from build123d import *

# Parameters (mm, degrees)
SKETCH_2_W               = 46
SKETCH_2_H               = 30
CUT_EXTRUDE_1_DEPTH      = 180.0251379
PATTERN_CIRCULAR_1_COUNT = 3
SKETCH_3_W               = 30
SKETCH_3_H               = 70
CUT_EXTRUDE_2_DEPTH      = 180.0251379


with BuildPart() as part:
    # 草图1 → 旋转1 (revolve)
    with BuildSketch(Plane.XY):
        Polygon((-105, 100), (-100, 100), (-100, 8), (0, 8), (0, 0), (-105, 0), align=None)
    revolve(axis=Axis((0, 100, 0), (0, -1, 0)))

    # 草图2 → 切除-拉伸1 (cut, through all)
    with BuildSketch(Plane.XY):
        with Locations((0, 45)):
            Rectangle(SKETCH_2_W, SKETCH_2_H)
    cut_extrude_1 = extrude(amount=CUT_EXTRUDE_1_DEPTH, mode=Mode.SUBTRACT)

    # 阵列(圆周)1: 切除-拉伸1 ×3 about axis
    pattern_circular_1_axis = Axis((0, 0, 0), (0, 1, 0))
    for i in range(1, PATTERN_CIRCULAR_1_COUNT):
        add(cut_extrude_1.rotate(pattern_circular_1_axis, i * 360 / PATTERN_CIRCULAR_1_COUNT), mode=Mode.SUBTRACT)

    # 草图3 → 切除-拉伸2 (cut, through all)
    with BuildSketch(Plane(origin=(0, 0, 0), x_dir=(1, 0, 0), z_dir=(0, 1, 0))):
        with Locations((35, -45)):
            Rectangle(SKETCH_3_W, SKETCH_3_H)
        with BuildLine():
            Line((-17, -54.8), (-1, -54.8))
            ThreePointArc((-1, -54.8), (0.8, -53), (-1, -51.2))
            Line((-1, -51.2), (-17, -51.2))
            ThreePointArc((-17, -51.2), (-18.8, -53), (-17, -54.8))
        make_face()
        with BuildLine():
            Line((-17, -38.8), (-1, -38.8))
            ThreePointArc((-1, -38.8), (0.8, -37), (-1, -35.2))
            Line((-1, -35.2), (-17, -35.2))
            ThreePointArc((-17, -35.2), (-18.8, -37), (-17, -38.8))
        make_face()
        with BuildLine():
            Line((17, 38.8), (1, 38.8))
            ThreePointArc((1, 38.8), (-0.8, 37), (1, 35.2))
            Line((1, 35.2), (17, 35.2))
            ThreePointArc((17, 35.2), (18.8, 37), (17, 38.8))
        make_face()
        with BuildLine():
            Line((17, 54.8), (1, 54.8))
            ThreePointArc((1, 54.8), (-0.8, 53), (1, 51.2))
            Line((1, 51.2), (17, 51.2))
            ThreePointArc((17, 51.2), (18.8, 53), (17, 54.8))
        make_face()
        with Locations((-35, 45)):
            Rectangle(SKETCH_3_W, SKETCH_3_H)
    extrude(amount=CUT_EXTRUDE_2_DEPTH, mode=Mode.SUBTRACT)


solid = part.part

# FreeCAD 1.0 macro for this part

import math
import FreeCAD as App
import Part
import Sketcher

V = App.Vector
Q = App.Units.Quantity


def add_polygon(sketch, points):
    """Adds a closed chain of lines whose ends are joined by coincident constraints."""
    first, n = sketch.GeometryCount, len(points)
    for a, b in zip(points, points[1:] + points[:1]):
        sketch.addGeometry(Part.LineSegment(App.Vector(*a, 0), App.Vector(*b, 0)), False)
    for i in range(n):
        sketch.addConstraint(Sketcher.Constraint("Coincident", first + i, 2, first + (i + 1) % n, 1))

doc = App.newDocument("Part")
body = doc.addObject("PartDesign::Body", "Body")

# Sketch on XY plane
sketch1 = body.newObject("Sketcher::SketchObject", "Sketch")
sketch1.AttachmentSupport = (doc.getObject("XY_Plane"), [""])
sketch1.MapMode = "FlatFace"
add_polygon(sketch1, [(-100, 100), (-105, 100), (-105, 0), (0, 0), (0, 8), (-100, 8)])  # lines 0-5
sketch1.addConstraint([
    Sketcher.Constraint("Horizontal", 0),
    Sketcher.Constraint("Vertical", 1),
    Sketcher.Constraint("Horizontal", 2),
    Sketcher.Constraint("Vertical", 3),
    Sketcher.Constraint("Horizontal", 4),
    Sketcher.Constraint("Vertical", 5),
    Sketcher.Constraint("Coincident", 2, 2, -1, 1),
    Sketcher.Constraint("Equal", 4, 1),
    Sketcher.Constraint("DistanceX", 0, 2, 0, 1, Q("5 mm")),
    Sketcher.Constraint("DistanceX", 2, 1, 2, 2, Q("105 mm")),
    Sketcher.Constraint("DistanceY", 3, 1, 3, 2, Q("8 mm")),
])
revolution = body.newObject("PartDesign::Revolution", "Revolution")
revolution.Profile = sketch1
revolution.ReferenceAxis = (sketch1, ["V_Axis"])
revolution.Angle = 360

# Sketch on XY plane
sketch2 = body.newObject("Sketcher::SketchObject", "Sketch001")
sketch2.AttachmentSupport = (doc.getObject("XY_Plane"), [""])
sketch2.MapMode = "FlatFace"
add_polygon(sketch2, [(-23, 60), (-23, 30), (23, 30), (23, 60)])  # lines 0-3
sketch2.addConstraint([
    Sketcher.Constraint("Vertical", 0),
    Sketcher.Constraint("Horizontal", 1),
    Sketcher.Constraint("Vertical", 2),
    Sketcher.Constraint("Horizontal", 3),
    Sketcher.Constraint("DistanceX", 1, 1, 1, 2, Q("46 mm")),
    Sketcher.Constraint("DistanceY", 0, 2, 0, 1, Q("30 mm")),
    Sketcher.Constraint("DistanceX", 0, 2, -1, 1, Q("23 mm")),
    Sketcher.Constraint("DistanceY", -1, 1, 0, 2, Q("30 mm")),
])
pocket1 = body.newObject("PartDesign::Pocket", "Pocket")
pocket1.Profile = sketch2
pocket1.Type = "ThroughAll"
pocket1.Reversed = True
doc.recompute()

polarpattern = body.newObject("PartDesign::PolarPattern", "PolarPattern")
polarpattern.Originals = [pocket1]
polarpattern.Axis = (doc.getObject("Y_Axis"), [""])
polarpattern.Angle = 360
polarpattern.Occurrences = 3
body.Tip = polarpattern

# Sketch on XZ plane
sketch3 = body.newObject("Sketcher::SketchObject", "Sketch002")
sketch3.AttachmentSupport = (doc.getObject("XZ_Plane"), [""])
sketch3.MapMode = "FlatFace"
add_polygon(sketch3, [(20, 10), (20, 80), (50, 80), (50, 10)])  # lines 0-3
sketch3.addGeometry(Part.LineSegment(V(-17, 54.8, 0), V(-1, 54.8, 0)), False)  # 4
sketch3.addGeometry(Part.ArcOfCircle(Part.Circle(V(-1, 53, 0), V(0, 0, 1), 1.8), math.radians(-90), math.radians(90)), False)  # 5
sketch3.addGeometry(Part.LineSegment(V(-1, 51.2, 0), V(-17, 51.2, 0)), False)  # 6
sketch3.addGeometry(Part.ArcOfCircle(Part.Circle(V(-17, 53, 0), V(0, 0, 1), 1.8), math.radians(90), math.radians(270)), False)  # 7
sketch3.addGeometry(Part.LineSegment(V(-17, 38.8, 0), V(-1, 38.8, 0)), False)  # 8
sketch3.addGeometry(Part.ArcOfCircle(Part.Circle(V(-1, 37, 0), V(0, 0, 1), 1.8), math.radians(-90), math.radians(90)), False)  # 9
sketch3.addGeometry(Part.LineSegment(V(-1, 35.2, 0), V(-17, 35.2, 0)), False)  # 10
sketch3.addGeometry(Part.ArcOfCircle(Part.Circle(V(-17, 37, 0), V(0, 0, 1), 1.8), math.radians(90), math.radians(270)), False)  # 11
sketch3.addGeometry(Part.LineSegment(V(17, -38.8, 0), V(1, -38.8, 0)), False)  # 12
sketch3.addGeometry(Part.ArcOfCircle(Part.Circle(V(1, -37, 0), V(0, 0, 1), 1.8), math.radians(90), math.radians(270)), False)  # 13
sketch3.addGeometry(Part.LineSegment(V(1, -35.2, 0), V(17, -35.2, 0)), False)  # 14
sketch3.addGeometry(Part.ArcOfCircle(Part.Circle(V(17, -37, 0), V(0, 0, 1), 1.8), math.radians(-90), math.radians(90)), False)  # 15
sketch3.addGeometry(Part.LineSegment(V(17, -54.8, 0), V(1, -54.8, 0)), False)  # 16
sketch3.addGeometry(Part.ArcOfCircle(Part.Circle(V(1, -53, 0), V(0, 0, 1), 1.8), math.radians(90), math.radians(270)), False)  # 17
sketch3.addGeometry(Part.LineSegment(V(1, -51.2, 0), V(17, -51.2, 0)), False)  # 18
sketch3.addGeometry(Part.ArcOfCircle(Part.Circle(V(17, -53, 0), V(0, 0, 1), 1.8), math.radians(-90), math.radians(90)), False)  # 19
add_polygon(sketch3, [(-50, -80), (-50, -10), (-20, -10), (-20, -80)])  # lines 20-23
sketch3.addConstraint([
    Sketcher.Constraint("Tangent", 4, 2, 5, 2),
    Sketcher.Constraint("Tangent", 5, 1, 6, 1),
    Sketcher.Constraint("Tangent", 6, 2, 7, 2),
    Sketcher.Constraint("Tangent", 7, 1, 4, 1),
    Sketcher.Constraint("Tangent", 8, 2, 9, 2),
    Sketcher.Constraint("Tangent", 9, 1, 10, 1),
    Sketcher.Constraint("Tangent", 10, 2, 11, 2),
    Sketcher.Constraint("Tangent", 11, 1, 8, 1),
    Sketcher.Constraint("Tangent", 12, 2, 13, 2),
    Sketcher.Constraint("Tangent", 13, 1, 14, 1),
    Sketcher.Constraint("Tangent", 14, 2, 15, 2),
    Sketcher.Constraint("Tangent", 15, 1, 12, 1),
    Sketcher.Constraint("Tangent", 16, 2, 17, 2),
    Sketcher.Constraint("Tangent", 17, 1, 18, 1),
    Sketcher.Constraint("Tangent", 18, 2, 19, 2),
    Sketcher.Constraint("Tangent", 19, 1, 16, 1),
    Sketcher.Constraint("Vertical", 0),
    Sketcher.Constraint("Horizontal", 1),
    Sketcher.Constraint("Vertical", 2),
    Sketcher.Constraint("Horizontal", 3),
    Sketcher.Constraint("Horizontal", 4),
    Sketcher.Constraint("Horizontal", 6),
    Sketcher.Constraint("Horizontal", 8),
    Sketcher.Constraint("Horizontal", 10),
    Sketcher.Constraint("Horizontal", 12),
    Sketcher.Constraint("Horizontal", 14),
    Sketcher.Constraint("Horizontal", 16),
    Sketcher.Constraint("Horizontal", 18),
    Sketcher.Constraint("Vertical", 20),
    Sketcher.Constraint("Horizontal", 21),
    Sketcher.Constraint("Vertical", 22),
    Sketcher.Constraint("Horizontal", 23),
    Sketcher.Constraint("Equal", 7, 9),
    Sketcher.Constraint("Equal", 11, 13),
    Sketcher.Constraint("Equal", 15, 17),
    Sketcher.Constraint("Symmetric", 9, 3, 13, 3, -1, 1),
    Sketcher.Constraint("Symmetric", 5, 3, 17, 3, -1, 1),
    Sketcher.Constraint("Symmetric", 2, 2, 20, 2, -1, 1),
    Sketcher.Constraint("Symmetric", 0, 2, 22, 2, -1, 1),
    Sketcher.Constraint("Vertical", 5, 3, 9, 3),
    Sketcher.Constraint("Vertical", 7, 3, 11, 3),
    Sketcher.Constraint("Vertical", 15, 3, 19, 3),
    Sketcher.Constraint("Equal", 10, 12),
    Sketcher.Constraint("Radius", 5, Q("1.8 mm")),
    Sketcher.Constraint("DistanceX", 1, 1, 1, 2, Q("30 mm")),
    Sketcher.Constraint("DistanceX", 4, 1, 4, 2, Q("16 mm")),
    Sketcher.Constraint("DistanceY", 0, 1, 0, 2, Q("70 mm")),
    Sketcher.Constraint("DistanceX", 5, 3, -1, 1, Q("1 mm")),
    Sketcher.Constraint("DistanceY", -1, 1, 5, 3, Q("53 mm")),
    Sketcher.Constraint("DistanceY", -1, 1, 9, 3, Q("37 mm")),
    Sketcher.Constraint("DistanceX", -1, 1, 0, 2, Q("20 mm")),
    Sketcher.Constraint("DistanceY", -1, 1, 0, 2, Q("80 mm")),
])
pocket2 = body.newObject("PartDesign::Pocket", "Pocket001")
pocket2.Profile = sketch3
pocket2.Type = "ThroughAll"

doc.recompute()
